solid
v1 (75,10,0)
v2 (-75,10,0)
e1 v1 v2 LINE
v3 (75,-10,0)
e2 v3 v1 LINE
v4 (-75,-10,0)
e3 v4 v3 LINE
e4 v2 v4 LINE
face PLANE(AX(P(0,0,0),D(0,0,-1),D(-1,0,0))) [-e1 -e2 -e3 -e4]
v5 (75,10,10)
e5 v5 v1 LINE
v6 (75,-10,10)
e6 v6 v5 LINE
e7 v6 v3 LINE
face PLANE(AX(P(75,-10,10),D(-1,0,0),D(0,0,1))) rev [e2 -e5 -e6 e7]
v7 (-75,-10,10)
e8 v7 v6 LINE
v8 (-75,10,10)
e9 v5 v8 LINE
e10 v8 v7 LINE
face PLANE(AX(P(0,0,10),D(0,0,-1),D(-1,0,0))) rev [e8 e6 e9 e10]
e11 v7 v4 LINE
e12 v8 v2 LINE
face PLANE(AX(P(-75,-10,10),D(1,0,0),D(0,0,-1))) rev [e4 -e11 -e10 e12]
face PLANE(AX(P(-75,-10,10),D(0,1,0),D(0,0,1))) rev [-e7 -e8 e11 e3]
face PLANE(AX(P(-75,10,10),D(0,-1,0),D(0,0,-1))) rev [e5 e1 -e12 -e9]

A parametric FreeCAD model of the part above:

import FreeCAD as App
import Part
import Sketcher

V = App.Vector
Q = App.Units.Quantity

doc = App.newDocument("Part")
body = doc.addObject("PartDesign::Body", "Body")

sketch1 = body.newObject("Sketcher::SketchObject", "Sketch")
sketch1.AttachmentSupport = (doc.getObject("XY_Plane"), [""])
sketch1.MapMode = "FlatFace"
sketch1.addGeometry(Part.LineSegment(V(-75, 10, 0), V(-75, -10, 0)), False)
sketch1.addGeometry(Part.LineSegment(V(-75, -10, 0), V(75, -10, 0)), False)
sketch1.addGeometry(Part.LineSegment(V(75, -10, 0), V(75, 10, 0)), False)
sketch1.addGeometry(Part.LineSegment(V(75, 10, 0), V(-75, 10, 0)), False)
sketch1.addConstraint(Sketcher.Constraint("Coincident", 0, 2, 1, 1))
sketch1.addConstraint(Sketcher.Constraint("Coincident", 1, 2, 2, 1))
sketch1.addConstraint(Sketcher.Constraint("Coincident", 2, 2, 3, 1))
sketch1.addConstraint(Sketcher.Constraint("Coincident", 3, 2, 0, 1))
sketch1.addConstraint(Sketcher.Constraint("Vertical", 0))
sketch1.addConstraint(Sketcher.Constraint("Horizontal", 1))
sketch1.addConstraint(Sketcher.Constraint("Vertical", 2))
sketch1.addConstraint(Sketcher.Constraint("Horizontal", 3))
sketch1.addConstraint(Sketcher.Constraint("Symmetric", 0, 2, 2, 2, -1, 1))
sketch1.addConstraint(Sketcher.Constraint("DistanceX", 1, 1, 1, 2, Q("150 mm")))
sketch1.addConstraint(Sketcher.Constraint("DistanceY", 0, 2, 0, 1, Q("20 mm")))
pad1 = body.newObject("PartDesign::Pad", "Pad")
pad1.Profile = sketch1
pad1.Length = 10

doc.recompute()
